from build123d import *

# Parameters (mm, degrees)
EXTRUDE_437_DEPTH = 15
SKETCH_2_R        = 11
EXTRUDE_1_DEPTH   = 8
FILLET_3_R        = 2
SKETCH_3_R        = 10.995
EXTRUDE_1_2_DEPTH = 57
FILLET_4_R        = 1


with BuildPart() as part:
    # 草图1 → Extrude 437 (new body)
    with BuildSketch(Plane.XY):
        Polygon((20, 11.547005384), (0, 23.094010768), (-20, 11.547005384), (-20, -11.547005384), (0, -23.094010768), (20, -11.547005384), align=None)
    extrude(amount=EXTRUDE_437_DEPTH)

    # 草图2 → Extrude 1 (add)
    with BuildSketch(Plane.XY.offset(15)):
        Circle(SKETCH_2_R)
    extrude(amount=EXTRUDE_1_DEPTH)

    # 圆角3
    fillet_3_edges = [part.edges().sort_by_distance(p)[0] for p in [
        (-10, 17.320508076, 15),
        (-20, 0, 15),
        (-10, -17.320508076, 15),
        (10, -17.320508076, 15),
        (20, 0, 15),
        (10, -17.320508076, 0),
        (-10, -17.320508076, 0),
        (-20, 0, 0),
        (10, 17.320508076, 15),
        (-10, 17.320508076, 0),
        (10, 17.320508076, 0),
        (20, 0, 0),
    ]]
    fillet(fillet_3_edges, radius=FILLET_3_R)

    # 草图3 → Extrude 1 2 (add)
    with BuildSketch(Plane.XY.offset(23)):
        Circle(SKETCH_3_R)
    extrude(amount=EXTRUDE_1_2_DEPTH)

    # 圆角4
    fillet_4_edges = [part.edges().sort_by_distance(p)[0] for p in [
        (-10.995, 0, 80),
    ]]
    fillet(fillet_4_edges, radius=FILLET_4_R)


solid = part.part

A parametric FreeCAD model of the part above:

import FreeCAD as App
import Part
import Sketcher

V = App.Vector
Q = App.Units.Quantity


def edges_at(feature, points):
    """Names of the edges that pass closest to the given points."""
    edges = feature.Shape.Edges
    near = lambda p: min(range(len(edges)), key=lambda i: edges[i].distToShape(Part.Vertex(*p))[0])
    return sorted({f"Edge{near(p) + 1}" for p in points})

doc = App.newDocument("Part")
body = doc.addObject("PartDesign::Body", "Body")

sketch1 = doc.addObject("Sketcher::SketchObject", "Sketch")
body.addObject(sketch1)
sketch1.AttachmentSupport = (doc.XY_Plane, [""])
sketch1.MapMode = "FlatFace"
sketch1.addGeometry([
    Part.LineSegment(V(20, 12, 0), V(0, 23, 0)),
    Part.LineSegment(V(0, 23, 0), V(-20, 12, 0)),
    Part.LineSegment(V(-20, 12, 0), V(-20, -12, 0)),
    Part.LineSegment(V(-20, -12, 0), V(0, -23, 0)),
    Part.LineSegment(V(0, -23, 0), V(20, -12, 0)),
    Part.LineSegment(V(20, -12, 0), V(20, 12, 0)),
], False)
sketch1.addConstraint([
    Sketcher.Constraint("Coincident", 0, 2, 1, 1),
    Sketcher.Constraint("Coincident", 1, 2, 2, 1),
    Sketcher.Constraint("Coincident", 2, 2, 3, 1),
    Sketcher.Constraint("Coincident", 3, 2, 4, 1),
    Sketcher.Constraint("Coincident", 4, 2, 5, 1),
    Sketcher.Constraint("Coincident", 5, 2, 0, 1),
    Sketcher.Constraint("Vertical", 2),
    Sketcher.Constraint("Vertical", 5),
    Sketcher.Constraint("Symmetric", 0, 2, 3, 2, -1, 1),
    Sketcher.Constraint("Symmetric", 1, 2, 4, 2, -1, 1),
    Sketcher.Constraint("PointOnObject", 0, 2, -2),
    Sketcher.Constraint("Parallel", 0, 3),
    Sketcher.Constraint("Horizontal", 2, 2, 4, 2),
    Sketcher.Constraint("Angle", 0, Q("150 deg")),
    Sketcher.Constraint("DistanceX", 1, 2, -1, 1, 20.0),
    Sketcher.Constraint("DistanceY", 2, 2, 2, 1, 23.094011),
])
pad1 = doc.addObject("PartDesign::Pad", "Pad")
body.addObject(pad1)
pad1.Profile = sketch1
pad1.Length = 15

sketch2 = doc.addObject("Sketcher::SketchObject", "Sketch001")
body.addObject(sketch2)
sketch2.AttachmentSupport = (doc.XY_Plane, [""])
sketch2.MapMode = "FlatFace"
sketch2.AttachmentOffset = App.Placement(V(0, 0, 15), App.Rotation())
sketch2.addGeometry(Part.Circle(V(0, 0, 0), V(0, 0, 1), 11), False)
sketch2.addConstraint([
    Sketcher.Constraint("Coincident", 0, 3, -1, 1),
    Sketcher.Constraint("Diameter", 0, 22.0),
])
pad2 = doc.addObject("PartDesign::Pad", "Pad001")
body.addObject(pad2)
pad2.Profile = sketch2
pad2.Length = 8
doc.recompute()

fillet = doc.addObject("PartDesign::Fillet", "Fillet")
body.addObject(fillet)
fillet.Base = (pad2, edges_at(pad2, [
    (-10, 17.321, 15),
    (-20, 0, 15),
    (-10, -17.321, 15),
    (10, -17.321, 15),
    (20, 0, 15),
    (10, -17.321, 0),
    (-10, -17.321, 0),
    (-20, 0, 0),
    (10, 17.321, 15),
    (-10, 17.321, 0),
    (10, 17.321, 0),
    (20, 0, 0),
]))
fillet.Radius = 2

sketch3 = doc.addObject("Sketcher::SketchObject", "Sketch002")
body.addObject(sketch3)
sketch3.AttachmentSupport = (doc.XY_Plane, [""])
sketch3.MapMode = "FlatFace"
sketch3.AttachmentOffset = App.Placement(V(0, 0, 23), App.Rotation())
sketch3.addGeometry(Part.Circle(V(0, 0, 0), V(0, 0, 1), 11), False)
sketch3.addConstraint([
    Sketcher.Constraint("Coincident", 0, 3, -1, 1),
    Sketcher.Constraint("Diameter", 0, 21.99),
])
pad3 = doc.addObject("PartDesign::Pad", "Pad002")
body.addObject(pad3)
pad3.Profile = sketch3
pad3.Length = 57
doc.recompute()

fillet2 = doc.addObject("PartDesign::Fillet", "Fillet001")
body.addObject(fillet2)
fillet2.Base = (pad3, edges_at(pad3, [(-10.995, 0, 80)]))
fillet2.Radius = 1

doc.recompute()
